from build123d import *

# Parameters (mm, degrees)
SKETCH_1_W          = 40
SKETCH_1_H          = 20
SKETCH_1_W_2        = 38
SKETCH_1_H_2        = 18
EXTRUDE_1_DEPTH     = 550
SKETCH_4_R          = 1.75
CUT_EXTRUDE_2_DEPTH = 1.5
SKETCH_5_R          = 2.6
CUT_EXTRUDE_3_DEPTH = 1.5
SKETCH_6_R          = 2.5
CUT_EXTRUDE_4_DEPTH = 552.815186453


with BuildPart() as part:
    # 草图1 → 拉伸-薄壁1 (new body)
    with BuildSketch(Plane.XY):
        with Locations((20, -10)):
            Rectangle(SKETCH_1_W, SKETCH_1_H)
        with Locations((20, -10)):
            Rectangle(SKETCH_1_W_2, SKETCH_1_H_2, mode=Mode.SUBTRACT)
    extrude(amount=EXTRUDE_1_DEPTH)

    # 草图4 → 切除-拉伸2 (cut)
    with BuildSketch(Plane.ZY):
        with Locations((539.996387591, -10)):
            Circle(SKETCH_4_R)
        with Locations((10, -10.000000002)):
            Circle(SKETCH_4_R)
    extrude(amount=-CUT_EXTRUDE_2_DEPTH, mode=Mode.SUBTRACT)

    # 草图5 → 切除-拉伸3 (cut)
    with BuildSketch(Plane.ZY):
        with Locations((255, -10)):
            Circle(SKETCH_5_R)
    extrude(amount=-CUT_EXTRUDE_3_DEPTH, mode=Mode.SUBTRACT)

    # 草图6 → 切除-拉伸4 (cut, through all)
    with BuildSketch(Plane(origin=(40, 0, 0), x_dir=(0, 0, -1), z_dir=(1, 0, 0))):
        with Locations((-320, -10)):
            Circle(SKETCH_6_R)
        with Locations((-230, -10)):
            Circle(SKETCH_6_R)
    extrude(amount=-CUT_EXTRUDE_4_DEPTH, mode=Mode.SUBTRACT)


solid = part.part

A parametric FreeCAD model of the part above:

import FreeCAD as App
import Part
import Sketcher

V = App.Vector


def add_polygon(sketch, points):
    """Adds a closed chain of lines whose ends are joined by coincident constraints."""
    first, n = sketch.GeometryCount, len(points)
    for a, b in zip(points, points[1:] + points[:1]):
        sketch.addGeometry(Part.LineSegment(App.Vector(*a, 0), App.Vector(*b, 0)), False)
    for i in range(n):
        sketch.addConstraint(Sketcher.Constraint("Coincident", first + i, 2, first + (i + 1) % n, 1))

doc = App.newDocument("Part")
body = doc.addObject("PartDesign::Body", "Body")

# Sketch on XY plane
sketch1 = body.newObject("Sketcher::SketchObject", "Sketch")
sketch1.AttachmentSupport = (doc.getObject("XY_Plane"), [""])
sketch1.MapMode = "FlatFace"
add_polygon(sketch1, [(0, 0), (0, -20), (40, -20), (40, 0)])  # lines 0-3
add_polygon(sketch1, [(39, -19), (1, -19), (1, -1), (39, -1)])  # lines 4-7
sketch1.addConstraint(Sketcher.Constraint("Vertical", 0))
sketch1.addConstraint(Sketcher.Constraint("Horizontal", 1))
sketch1.addConstraint(Sketcher.Constraint("Vertical", 2))
sketch1.addConstraint(Sketcher.Constraint("Horizontal", 3))
sketch1.addConstraint(Sketcher.Constraint("Horizontal", 4))
sketch1.addConstraint(Sketcher.Constraint("Vertical", 5))
sketch1.addConstraint(Sketcher.Constraint("Horizontal", 6))
sketch1.addConstraint(Sketcher.Constraint("Vertical", 7))
sketch1.addConstraint(Sketcher.Constraint("Coincident", 3, 2, -1, 1))
sketch1.addConstraint(Sketcher.Constraint("DistanceX", 1, 1, 1, 2, 40.0))
sketch1.addConstraint(Sketcher.Constraint("DistanceX", 4, 2, 4, 1, 38.0))
sketch1.addConstraint(Sketcher.Constraint("DistanceY", 0, 2, 0, 1, 20.0))
sketch1.addConstraint(Sketcher.Constraint("DistanceY", 5, 1, 5, 2, 18.0))
sketch1.addConstraint(Sketcher.Constraint("DistanceX", -1, 1, 4, 2, 1.0))
sketch1.addConstraint(Sketcher.Constraint("DistanceY", 4, 2, -1, 1, 19.0))
pad1 = body.newObject("PartDesign::Pad", "Pad")
pad1.Profile = sketch1
pad1.Length = 550

# Sketch on YZ plane
sketch2 = body.newObject("Sketcher::SketchObject", "Sketch001")
sketch2.AttachmentSupport = (doc.getObject("YZ_Plane"), [""])
sketch2.MapMode = "FlatFace"
sketch2.addGeometry(Part.Circle(V(-10, 540, 0), V(0, 0, 1), 1.8), False)
sketch2.addGeometry(Part.Circle(V(-10, 10, 0), V(0, 0, 1), 1.8), False)
sketch2.addConstraint(Sketcher.Constraint("Equal", 0, 1))
sketch2.addConstraint(Sketcher.Constraint("Vertical", 0, 3, 1, 3))
sketch2.addConstraint(Sketcher.Constraint("Diameter", 0, 3.5))
sketch2.addConstraint(Sketcher.Constraint("DistanceX", 0, 3, -1, 1, 10.0))
sketch2.addConstraint(Sketcher.Constraint("DistanceY", -1, 1, 1, 3, 10.0))
sketch2.addConstraint(Sketcher.Constraint("DistanceY", -1, 1, 0, 3, 539.996388))
pocket1 = body.newObject("PartDesign::Pocket", "Pocket")
pocket1.Profile = sketch2
pocket1.Length = 1.5
pocket1.Reversed = True

# Sketch on YZ plane
sketch3 = body.newObject("Sketcher::SketchObject", "Sketch002")
sketch3.AttachmentSupport = (doc.getObject("YZ_Plane"), [""])
sketch3.MapMode = "FlatFace"
sketch3.addGeometry(Part.Circle(V(-10, 255, 0), V(0, 0, 1), 2.6), False)
sketch3.addConstraint(Sketcher.Constraint("Diameter", 0, 5.2))
sketch3.addConstraint(Sketcher.Constraint("DistanceX", 0, 3, -1, 1, 10.0))
sketch3.addConstraint(Sketcher.Constraint("DistanceY", -1, 1, 0, 3, 255.0))
pocket2 = body.newObject("PartDesign::Pocket", "Pocket001")
pocket2.Profile = sketch3
pocket2.Length = 1.5
pocket2.Reversed = True

# Sketch on YZ plane
sketch4 = body.newObject("Sketcher::SketchObject", "Sketch003")
sketch4.AttachmentSupport = (doc.getObject("YZ_Plane"), [""])
sketch4.MapMode = "FlatFace"
sketch4.AttachmentOffset = App.Placement(V(0, 0, 40), App.Rotation())
sketch4.addGeometry(Part.Circle(V(-10, 320, 0), V(0, 0, 1), 2.5), False)
sketch4.addGeometry(Part.Circle(V(-10, 230, 0), V(0, 0, 1), 2.5), False)
sketch4.addConstraint(Sketcher.Constraint("Equal", 0, 1))
sketch4.addConstraint(Sketcher.Constraint("Vertical", 0, 3, 1, 3))
sketch4.addConstraint(Sketcher.Constraint("Diameter", 0, 5.0))
sketch4.addConstraint(Sketcher.Constraint("DistanceX", 0, 3, -1, 1, 10.0))
sketch4.addConstraint(Sketcher.Constraint("DistanceY", -1, 1, 0, 3, 320.0))
sketch4.addConstraint(Sketcher.Constraint("DistanceY", -1, 1, 1, 3, 230.0))
pocket3 = body.newObject("PartDesign::Pocket", "Pocket002")
pocket3.Profile = sketch4
pocket3.Type = "ThroughAll"

doc.recompute()
